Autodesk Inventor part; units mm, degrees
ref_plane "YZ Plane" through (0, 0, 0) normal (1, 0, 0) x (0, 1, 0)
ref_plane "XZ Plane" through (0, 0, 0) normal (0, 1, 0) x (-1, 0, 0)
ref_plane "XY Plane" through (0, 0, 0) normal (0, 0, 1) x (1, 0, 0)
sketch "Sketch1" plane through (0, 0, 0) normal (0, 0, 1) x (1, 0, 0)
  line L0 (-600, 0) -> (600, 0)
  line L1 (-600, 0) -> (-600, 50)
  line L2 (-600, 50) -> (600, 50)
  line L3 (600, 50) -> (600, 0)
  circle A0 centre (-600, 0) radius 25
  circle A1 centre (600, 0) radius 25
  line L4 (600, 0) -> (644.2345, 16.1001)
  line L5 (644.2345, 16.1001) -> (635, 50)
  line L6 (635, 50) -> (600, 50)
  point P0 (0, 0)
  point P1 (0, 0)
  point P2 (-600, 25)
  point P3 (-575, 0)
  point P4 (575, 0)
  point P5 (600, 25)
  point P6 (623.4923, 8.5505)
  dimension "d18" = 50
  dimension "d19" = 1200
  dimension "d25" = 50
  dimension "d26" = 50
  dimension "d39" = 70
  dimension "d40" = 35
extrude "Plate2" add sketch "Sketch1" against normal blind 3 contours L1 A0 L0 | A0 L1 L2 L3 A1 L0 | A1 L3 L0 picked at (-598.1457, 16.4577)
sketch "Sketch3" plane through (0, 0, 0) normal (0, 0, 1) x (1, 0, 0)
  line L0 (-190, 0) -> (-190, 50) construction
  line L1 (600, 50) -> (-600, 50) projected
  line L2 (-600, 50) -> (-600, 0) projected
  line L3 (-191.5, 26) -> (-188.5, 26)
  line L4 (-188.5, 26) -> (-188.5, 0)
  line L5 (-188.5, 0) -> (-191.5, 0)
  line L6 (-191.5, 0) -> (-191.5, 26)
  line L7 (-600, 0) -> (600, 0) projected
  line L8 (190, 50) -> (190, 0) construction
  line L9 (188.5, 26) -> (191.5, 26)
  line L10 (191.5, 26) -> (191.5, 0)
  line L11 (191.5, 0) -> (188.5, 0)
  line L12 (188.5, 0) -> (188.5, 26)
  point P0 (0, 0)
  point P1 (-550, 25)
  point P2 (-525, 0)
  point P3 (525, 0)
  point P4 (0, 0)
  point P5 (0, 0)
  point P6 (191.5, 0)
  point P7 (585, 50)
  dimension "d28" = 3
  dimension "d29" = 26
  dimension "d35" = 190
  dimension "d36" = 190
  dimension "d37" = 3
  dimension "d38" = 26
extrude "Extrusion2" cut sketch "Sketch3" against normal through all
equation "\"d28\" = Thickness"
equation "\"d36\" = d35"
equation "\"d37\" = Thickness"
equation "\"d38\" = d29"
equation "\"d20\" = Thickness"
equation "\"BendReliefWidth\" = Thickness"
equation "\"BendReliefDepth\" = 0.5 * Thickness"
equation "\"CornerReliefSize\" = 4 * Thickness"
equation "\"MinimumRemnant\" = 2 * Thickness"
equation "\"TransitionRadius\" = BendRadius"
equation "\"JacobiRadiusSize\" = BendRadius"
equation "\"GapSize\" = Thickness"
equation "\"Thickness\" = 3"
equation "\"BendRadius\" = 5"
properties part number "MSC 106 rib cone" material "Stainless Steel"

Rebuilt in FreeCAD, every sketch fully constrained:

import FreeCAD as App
import Part
import Sketcher


def add_polygon(sketch, points):
    """Adds a closed chain of lines whose ends are joined by coincident constraints."""
    first, n = sketch.GeometryCount, len(points)
    for a, b in zip(points, points[1:] + points[:1]):
        sketch.addGeometry(Part.LineSegment(App.Vector(*a, 0), App.Vector(*b, 0)), False)
    for i in range(n):
        sketch.addConstraint(Sketcher.Constraint("Coincident", first + i, 2, first + (i + 1) % n, 1))

doc = App.newDocument("Part")
params = doc.addObject("Spreadsheet::Sheet", "Params")
for row, (alias, value) in enumerate([
    ("sketch1_width", "1200 mm"),
    ("sketch1_height", "50 mm"),
    ("pad1_length", "3 mm"),
    ("sketch2_width", "3 mm"),
    ("sketch2_height", "26 mm"),
], start=1):
    params.set(f"A{row}", alias)
    params.set(f"B{row}", "=" + value)
    params.setAlias(f"B{row}", alias)

body = doc.addObject("PartDesign::Body", "Body")

sketch1 = doc.addObject("Sketcher::SketchObject", "Sketch")
body.addObject(sketch1)
sketch1.AttachmentSupport = (doc.XY_Plane, [""])
sketch1.MapMode = "FlatFace"
add_polygon(sketch1, [(-600, 0), (600, 0), (600, 50), (-600, 50)])
sketch1.addConstraint(Sketcher.Constraint("Horizontal", 0))
sketch1.addConstraint(Sketcher.Constraint("Vertical", 1))
sketch1.addConstraint(Sketcher.Constraint("Horizontal", 2))
sketch1.addConstraint(Sketcher.Constraint("Vertical", 3))
sketch1.addConstraint(Sketcher.Constraint("Symmetric", 0, 2, 3, 2, -1, 1))
sketch1.addConstraint(Sketcher.Constraint("DistanceX", 0, 1, 0, 2, 1200.0))
sketch1.addConstraint(Sketcher.Constraint("DistanceY", 1, 1, 1, 2, 50.0))
sketch1.setExpression("Constraints[9]", "Params.sketch1_width")
sketch1.setExpression("Constraints[10]", "Params.sketch1_height")
pad1 = doc.addObject("PartDesign::Pad", "Pad")
body.addObject(pad1)
pad1.Profile = sketch1
pad1.setExpression("Length", "Params.pad1_length")
pad1.Reversed = True

sketch2 = doc.addObject("Sketcher::SketchObject", "Sketch001")
body.addObject(sketch2)
sketch2.AttachmentSupport = (doc.XY_Plane, [""])
sketch2.MapMode = "FlatFace"
add_polygon(sketch2, [(188.5, 26), (188.5, 0), (191.5, 0), (191.5, 26)])
add_polygon(sketch2, [(-188.5, 26), (-191.5, 26), (-191.5, 0), (-188.5, 0)])
sketch2.addConstraint(Sketcher.Constraint("Vertical", 0))
sketch2.addConstraint(Sketcher.Constraint("Horizontal", 1))
sketch2.addConstraint(Sketcher.Constraint("Vertical", 2))
sketch2.addConstraint(Sketcher.Constraint("Horizontal", 3))
sketch2.addConstraint(Sketcher.Constraint("Horizontal", 4))
sketch2.addConstraint(Sketcher.Constraint("Vertical", 5))
sketch2.addConstraint(Sketcher.Constraint("Horizontal", 6))
sketch2.addConstraint(Sketcher.Constraint("Vertical", 7))
sketch2.addConstraint(Sketcher.Constraint("Symmetric", 1, 2, 5, 2, -1, 1))
sketch2.addConstraint(Sketcher.Constraint("Symmetric", 0, 2, 6, 2, -2))
sketch2.addConstraint(Sketcher.Constraint("Horizontal", 3, 2, 4, 2))
sketch2.addConstraint(Sketcher.Constraint("DistanceX", 1, 1, 1, 2, 3.0))
sketch2.addConstraint(Sketcher.Constraint("DistanceY", 0, 2, 0, 1, 26.0))
sketch2.addConstraint(Sketcher.Constraint("DistanceX", 4, 2, 3, 2, 380.0))
sketch2.setExpression("Constraints[19]", "Params.sketch2_width")
sketch2.setExpression("Constraints[20]", "Params.sketch2_height")
pocket1 = doc.addObject("PartDesign::Pocket", "Pocket")
body.addObject(pocket1)
pocket1.Profile = sketch2
pocket1.Type = "ThroughAll"

doc.recompute()
